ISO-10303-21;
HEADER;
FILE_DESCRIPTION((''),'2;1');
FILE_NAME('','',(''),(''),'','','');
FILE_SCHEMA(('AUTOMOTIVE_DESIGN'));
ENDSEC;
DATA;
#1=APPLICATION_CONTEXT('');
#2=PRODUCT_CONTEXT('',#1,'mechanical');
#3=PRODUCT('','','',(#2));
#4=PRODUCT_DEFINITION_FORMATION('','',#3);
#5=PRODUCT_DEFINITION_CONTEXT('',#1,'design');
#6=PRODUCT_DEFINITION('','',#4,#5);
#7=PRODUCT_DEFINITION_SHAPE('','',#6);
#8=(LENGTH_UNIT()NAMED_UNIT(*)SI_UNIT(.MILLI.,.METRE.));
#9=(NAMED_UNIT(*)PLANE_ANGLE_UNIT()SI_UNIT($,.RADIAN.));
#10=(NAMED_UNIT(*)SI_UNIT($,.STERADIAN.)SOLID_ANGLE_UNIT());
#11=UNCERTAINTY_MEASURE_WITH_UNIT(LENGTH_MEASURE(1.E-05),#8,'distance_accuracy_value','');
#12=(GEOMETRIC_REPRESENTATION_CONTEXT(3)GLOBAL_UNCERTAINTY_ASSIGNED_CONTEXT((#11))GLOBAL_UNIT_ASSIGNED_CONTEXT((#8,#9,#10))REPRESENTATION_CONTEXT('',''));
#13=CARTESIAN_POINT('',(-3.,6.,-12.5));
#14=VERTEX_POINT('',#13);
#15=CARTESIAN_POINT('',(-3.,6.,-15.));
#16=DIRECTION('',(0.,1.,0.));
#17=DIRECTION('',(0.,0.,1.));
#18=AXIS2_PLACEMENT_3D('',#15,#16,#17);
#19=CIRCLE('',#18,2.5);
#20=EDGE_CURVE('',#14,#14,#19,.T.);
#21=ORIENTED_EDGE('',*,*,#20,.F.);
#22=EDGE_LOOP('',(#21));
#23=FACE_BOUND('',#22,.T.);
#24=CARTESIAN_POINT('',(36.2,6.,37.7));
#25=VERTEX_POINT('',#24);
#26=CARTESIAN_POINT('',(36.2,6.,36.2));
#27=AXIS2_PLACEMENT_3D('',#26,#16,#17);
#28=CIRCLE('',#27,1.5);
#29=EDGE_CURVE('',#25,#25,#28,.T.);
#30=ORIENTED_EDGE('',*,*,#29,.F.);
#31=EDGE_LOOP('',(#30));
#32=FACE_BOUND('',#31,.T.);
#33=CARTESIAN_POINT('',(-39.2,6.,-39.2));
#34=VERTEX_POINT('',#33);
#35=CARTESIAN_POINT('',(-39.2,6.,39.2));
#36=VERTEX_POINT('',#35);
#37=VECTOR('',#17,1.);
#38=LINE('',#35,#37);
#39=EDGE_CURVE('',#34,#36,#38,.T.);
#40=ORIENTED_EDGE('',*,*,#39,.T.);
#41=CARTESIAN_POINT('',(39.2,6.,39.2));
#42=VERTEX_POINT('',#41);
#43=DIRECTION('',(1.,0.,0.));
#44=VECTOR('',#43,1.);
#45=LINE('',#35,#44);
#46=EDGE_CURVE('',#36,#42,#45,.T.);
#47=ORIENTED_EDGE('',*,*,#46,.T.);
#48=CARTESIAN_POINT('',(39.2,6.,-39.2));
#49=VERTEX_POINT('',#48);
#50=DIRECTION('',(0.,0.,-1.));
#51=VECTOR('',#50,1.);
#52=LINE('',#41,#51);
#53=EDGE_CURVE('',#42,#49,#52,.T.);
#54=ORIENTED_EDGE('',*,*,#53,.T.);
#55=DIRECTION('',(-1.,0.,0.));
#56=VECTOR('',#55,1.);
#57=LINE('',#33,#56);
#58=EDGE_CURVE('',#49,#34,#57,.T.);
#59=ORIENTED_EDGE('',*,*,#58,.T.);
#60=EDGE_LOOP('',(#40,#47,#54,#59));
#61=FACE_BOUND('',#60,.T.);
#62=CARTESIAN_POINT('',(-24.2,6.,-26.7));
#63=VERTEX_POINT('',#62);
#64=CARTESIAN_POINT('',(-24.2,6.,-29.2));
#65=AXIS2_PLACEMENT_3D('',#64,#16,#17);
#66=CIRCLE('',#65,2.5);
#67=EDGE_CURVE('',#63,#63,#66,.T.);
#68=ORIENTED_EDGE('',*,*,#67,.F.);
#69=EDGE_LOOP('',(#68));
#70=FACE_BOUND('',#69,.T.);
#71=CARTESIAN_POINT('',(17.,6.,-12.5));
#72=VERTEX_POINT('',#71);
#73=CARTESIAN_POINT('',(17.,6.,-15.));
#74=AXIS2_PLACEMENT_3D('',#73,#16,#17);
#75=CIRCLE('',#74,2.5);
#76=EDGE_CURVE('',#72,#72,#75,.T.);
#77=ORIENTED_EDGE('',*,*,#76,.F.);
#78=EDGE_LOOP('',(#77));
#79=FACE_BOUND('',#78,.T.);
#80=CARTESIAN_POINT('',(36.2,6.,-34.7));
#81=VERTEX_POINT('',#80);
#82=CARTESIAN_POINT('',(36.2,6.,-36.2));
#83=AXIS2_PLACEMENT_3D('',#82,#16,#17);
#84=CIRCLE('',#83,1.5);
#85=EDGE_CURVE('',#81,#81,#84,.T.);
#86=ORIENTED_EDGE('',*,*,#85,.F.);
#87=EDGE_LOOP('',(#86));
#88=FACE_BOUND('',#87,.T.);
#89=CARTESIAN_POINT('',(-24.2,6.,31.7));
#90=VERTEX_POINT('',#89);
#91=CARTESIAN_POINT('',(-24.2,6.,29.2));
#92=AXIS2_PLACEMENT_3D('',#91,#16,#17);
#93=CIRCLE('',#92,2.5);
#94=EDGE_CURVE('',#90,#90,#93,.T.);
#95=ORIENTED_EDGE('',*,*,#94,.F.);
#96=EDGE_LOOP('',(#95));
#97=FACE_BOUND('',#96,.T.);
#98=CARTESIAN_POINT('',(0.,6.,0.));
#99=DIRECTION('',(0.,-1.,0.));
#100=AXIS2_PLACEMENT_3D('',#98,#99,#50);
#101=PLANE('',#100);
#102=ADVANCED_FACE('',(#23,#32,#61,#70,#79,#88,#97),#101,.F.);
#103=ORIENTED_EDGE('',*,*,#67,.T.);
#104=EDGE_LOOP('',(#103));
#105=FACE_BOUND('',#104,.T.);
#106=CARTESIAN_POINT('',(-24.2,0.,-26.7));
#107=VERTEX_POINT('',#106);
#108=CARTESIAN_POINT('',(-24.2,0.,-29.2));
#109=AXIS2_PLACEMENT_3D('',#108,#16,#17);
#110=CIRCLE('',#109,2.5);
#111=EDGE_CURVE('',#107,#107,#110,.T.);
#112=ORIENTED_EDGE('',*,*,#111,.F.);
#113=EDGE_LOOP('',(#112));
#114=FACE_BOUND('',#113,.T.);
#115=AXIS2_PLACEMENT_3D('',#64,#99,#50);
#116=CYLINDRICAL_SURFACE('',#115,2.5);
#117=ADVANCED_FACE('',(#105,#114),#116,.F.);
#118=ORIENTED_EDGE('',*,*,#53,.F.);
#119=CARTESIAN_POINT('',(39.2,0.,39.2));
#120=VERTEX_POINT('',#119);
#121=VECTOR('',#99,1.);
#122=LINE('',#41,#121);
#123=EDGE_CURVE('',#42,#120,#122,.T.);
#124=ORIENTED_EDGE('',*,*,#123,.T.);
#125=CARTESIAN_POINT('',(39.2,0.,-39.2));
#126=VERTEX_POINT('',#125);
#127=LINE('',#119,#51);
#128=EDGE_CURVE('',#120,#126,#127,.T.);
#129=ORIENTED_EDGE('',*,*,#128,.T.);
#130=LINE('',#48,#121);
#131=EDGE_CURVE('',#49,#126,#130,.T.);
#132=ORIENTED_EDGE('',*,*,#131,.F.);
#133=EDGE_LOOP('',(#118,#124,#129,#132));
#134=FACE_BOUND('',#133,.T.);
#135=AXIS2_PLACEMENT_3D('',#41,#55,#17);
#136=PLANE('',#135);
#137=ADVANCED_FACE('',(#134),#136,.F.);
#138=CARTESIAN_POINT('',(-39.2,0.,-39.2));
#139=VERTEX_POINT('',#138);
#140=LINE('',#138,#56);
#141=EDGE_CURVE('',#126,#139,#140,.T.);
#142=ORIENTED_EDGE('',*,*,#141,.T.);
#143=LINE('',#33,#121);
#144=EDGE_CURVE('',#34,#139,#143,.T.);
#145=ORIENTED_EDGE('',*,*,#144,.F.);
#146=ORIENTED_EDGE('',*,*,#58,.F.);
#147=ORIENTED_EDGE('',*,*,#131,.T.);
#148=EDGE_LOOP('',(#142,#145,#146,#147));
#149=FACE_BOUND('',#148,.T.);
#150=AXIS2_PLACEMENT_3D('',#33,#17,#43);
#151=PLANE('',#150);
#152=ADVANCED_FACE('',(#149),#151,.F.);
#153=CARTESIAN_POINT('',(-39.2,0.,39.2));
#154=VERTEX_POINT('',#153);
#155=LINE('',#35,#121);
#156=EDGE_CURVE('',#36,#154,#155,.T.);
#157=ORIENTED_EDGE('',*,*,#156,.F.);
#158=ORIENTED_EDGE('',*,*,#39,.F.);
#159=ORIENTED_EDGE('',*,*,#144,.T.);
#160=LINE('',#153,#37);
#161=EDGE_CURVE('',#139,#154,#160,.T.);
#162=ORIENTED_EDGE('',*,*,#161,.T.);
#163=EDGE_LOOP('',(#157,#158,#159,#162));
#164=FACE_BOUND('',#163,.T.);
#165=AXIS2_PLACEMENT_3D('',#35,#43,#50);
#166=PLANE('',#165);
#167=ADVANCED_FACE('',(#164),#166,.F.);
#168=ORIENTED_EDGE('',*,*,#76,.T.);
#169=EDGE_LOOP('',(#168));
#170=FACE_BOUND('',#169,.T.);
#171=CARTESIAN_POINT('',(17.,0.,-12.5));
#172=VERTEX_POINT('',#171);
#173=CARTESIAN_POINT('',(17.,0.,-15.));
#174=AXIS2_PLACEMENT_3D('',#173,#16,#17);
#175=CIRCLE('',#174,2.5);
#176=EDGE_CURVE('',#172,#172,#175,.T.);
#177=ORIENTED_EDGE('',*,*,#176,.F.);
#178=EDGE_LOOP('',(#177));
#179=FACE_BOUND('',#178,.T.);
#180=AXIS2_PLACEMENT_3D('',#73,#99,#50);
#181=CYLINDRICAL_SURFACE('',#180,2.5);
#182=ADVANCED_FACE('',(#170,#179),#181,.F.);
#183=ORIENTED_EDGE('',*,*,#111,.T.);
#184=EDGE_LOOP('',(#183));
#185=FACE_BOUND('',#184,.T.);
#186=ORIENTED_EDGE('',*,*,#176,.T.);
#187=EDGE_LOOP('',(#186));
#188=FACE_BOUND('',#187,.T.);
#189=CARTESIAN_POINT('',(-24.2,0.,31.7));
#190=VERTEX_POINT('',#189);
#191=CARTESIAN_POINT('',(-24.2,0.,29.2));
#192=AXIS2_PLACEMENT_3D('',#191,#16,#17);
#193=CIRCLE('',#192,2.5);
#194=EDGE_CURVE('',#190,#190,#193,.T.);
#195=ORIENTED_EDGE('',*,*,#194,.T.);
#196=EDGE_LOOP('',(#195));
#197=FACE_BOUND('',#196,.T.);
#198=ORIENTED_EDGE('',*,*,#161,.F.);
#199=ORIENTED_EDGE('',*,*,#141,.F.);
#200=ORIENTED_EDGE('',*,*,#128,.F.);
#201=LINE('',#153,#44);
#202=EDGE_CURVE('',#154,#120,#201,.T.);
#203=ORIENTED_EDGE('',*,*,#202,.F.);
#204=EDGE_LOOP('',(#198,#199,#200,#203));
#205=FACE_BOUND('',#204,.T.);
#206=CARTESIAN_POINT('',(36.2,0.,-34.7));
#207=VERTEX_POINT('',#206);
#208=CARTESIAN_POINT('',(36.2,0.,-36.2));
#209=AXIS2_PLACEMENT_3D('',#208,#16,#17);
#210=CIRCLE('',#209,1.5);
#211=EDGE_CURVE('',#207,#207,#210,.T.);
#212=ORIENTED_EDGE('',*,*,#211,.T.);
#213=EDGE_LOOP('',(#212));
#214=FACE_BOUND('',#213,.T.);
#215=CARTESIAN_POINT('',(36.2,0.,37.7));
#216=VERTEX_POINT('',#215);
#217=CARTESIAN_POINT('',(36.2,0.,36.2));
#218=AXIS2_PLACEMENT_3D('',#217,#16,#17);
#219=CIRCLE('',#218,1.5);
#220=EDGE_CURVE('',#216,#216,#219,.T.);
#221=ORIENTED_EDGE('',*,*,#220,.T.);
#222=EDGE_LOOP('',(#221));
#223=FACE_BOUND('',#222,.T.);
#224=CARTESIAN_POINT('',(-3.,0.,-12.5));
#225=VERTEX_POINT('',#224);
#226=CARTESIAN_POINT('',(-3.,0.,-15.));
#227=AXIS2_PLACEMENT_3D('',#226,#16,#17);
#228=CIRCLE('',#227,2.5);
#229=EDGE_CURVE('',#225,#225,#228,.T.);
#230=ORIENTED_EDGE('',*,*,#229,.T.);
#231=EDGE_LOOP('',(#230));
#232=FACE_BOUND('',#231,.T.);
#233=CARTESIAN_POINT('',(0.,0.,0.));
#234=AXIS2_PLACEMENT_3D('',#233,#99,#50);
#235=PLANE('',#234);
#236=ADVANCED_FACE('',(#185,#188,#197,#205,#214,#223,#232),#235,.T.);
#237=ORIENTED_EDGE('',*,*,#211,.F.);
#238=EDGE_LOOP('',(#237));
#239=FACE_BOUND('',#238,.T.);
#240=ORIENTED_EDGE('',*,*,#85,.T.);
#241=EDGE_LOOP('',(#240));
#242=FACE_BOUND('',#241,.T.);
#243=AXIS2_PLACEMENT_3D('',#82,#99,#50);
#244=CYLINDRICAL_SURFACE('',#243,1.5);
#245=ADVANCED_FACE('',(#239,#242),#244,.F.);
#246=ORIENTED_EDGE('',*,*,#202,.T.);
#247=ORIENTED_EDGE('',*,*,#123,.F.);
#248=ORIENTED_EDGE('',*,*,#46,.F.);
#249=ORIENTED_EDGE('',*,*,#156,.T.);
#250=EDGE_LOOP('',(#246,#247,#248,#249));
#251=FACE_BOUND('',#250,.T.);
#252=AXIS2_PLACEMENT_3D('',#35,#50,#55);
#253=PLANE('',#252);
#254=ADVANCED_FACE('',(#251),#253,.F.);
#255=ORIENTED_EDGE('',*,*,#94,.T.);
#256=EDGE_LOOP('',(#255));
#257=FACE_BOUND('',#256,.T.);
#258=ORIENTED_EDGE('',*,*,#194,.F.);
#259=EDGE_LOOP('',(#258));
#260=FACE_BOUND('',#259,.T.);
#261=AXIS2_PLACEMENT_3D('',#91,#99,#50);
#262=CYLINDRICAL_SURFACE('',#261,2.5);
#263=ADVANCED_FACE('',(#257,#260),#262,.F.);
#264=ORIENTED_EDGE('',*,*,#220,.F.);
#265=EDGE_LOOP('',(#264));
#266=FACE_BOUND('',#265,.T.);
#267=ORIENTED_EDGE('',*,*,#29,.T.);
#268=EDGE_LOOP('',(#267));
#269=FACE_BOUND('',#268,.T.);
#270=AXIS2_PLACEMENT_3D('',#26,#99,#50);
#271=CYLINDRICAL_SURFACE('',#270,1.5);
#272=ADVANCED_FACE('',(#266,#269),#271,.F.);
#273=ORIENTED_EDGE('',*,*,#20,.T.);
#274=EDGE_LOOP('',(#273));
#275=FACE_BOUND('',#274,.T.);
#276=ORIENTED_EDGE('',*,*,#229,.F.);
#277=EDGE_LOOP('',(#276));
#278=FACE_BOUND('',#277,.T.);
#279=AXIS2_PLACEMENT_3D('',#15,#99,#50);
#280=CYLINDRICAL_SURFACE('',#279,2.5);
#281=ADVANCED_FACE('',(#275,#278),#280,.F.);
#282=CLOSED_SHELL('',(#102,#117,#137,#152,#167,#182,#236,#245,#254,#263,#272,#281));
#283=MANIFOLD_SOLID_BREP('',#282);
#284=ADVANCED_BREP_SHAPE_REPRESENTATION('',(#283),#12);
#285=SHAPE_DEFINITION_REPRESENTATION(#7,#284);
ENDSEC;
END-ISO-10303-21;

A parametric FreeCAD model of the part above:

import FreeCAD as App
import Part
import Sketcher
Q = App.Units.Quantity

doc = App.newDocument("Part")
body = doc.addObject("PartDesign::Body", "Body")

# Sketch on XZ plane
sketch1 = body.newObject("Sketcher::SketchObject", "Sketch")
sketch1.AttachmentSupport = (doc.getObject("XZ_Plane"), [""])
sketch1.MapMode = "FlatFace"
sketch1.addGeometry([
    Part.LineSegment(App.Vector(-39.2, -39.2, 0), App.Vector(-39.2, 39.2, 0)),  # 0
    Part.LineSegment(App.Vector(-39.2, 39.2, 0), App.Vector(39.2, 39.2, 0)),  # 1
    Part.LineSegment(App.Vector(39.2, 39.2, 0), App.Vector(39.2, -39.2, 0)),  # 2
    Part.LineSegment(App.Vector(39.2, -39.2, 0), App.Vector(-39.2, -39.2, 0)),  # 3
    Part.Circle(App.Vector(-24.2, 29.2, 0), App.Vector(0, 0, 1), 2.5),  # 4
    Part.Circle(App.Vector(36.2, 36.2, 0), App.Vector(0, 0, 1), 1.5),  # 5
    Part.Circle(App.Vector(-3, -15, 0), App.Vector(0, 0, 1), 2.5),  # 6
    Part.Circle(App.Vector(-24.2, -29.2, 0), App.Vector(0, 0, 1), 2.5),  # 7
    Part.Circle(App.Vector(17, -15, 0), App.Vector(0, 0, 1), 2.5),  # 8
    Part.Circle(App.Vector(36.2, -36.2, 0), App.Vector(0, 0, 1), 1.5),  # 9
], False)
sketch1.addConstraint([
    Sketcher.Constraint("Coincident", 0, 2, 1, 1),
    Sketcher.Constraint("Coincident", 1, 2, 2, 1),
    Sketcher.Constraint("Coincident", 2, 2, 3, 1),
    Sketcher.Constraint("Coincident", 3, 2, 0, 1),
    Sketcher.Constraint("Vertical", 0),
    Sketcher.Constraint("Horizontal", 1),
    Sketcher.Constraint("Vertical", 2),
    Sketcher.Constraint("Horizontal", 3),
    Sketcher.Constraint("Equal", 4, 6),
    Sketcher.Constraint("Equal", 6, 7),
    Sketcher.Constraint("Equal", 7, 8),
    Sketcher.Constraint("Equal", 5, 9),
    Sketcher.Constraint("Symmetric", 0, 2, 2, 2, -1, 1),
    Sketcher.Constraint("Symmetric", 4, 3, 7, 3, -1),
    Sketcher.Constraint("Symmetric", 5, 3, 9, 3, -1),
    Sketcher.Constraint("Horizontal", 6, 3, 8, 3),
    Sketcher.Constraint("Equal", 3, 0),
    Sketcher.Constraint("Diameter", 4, Q("5 mm")),
    Sketcher.Constraint("Diameter", 5, Q("3 mm")),
    Sketcher.Constraint("DistanceX", 1, 1, 1, 2, Q("78.4 mm")),
    Sketcher.Constraint("DistanceX", 6, 3, -1, 1, Q("3 mm")),
    Sketcher.Constraint("DistanceY", 6, 3, -1, 1, Q("15 mm")),
    Sketcher.Constraint("DistanceX", -1, 1, 8, 3, Q("17 mm")),
    Sketcher.Constraint("DistanceY", 4, 3, 5, 3, Q("7 mm")),
    Sketcher.Constraint("DistanceX", 0, 2, 4, 3, Q("15 mm")),
    Sketcher.Constraint("DistanceY", 4, 3, 0, 2, Q("10 mm")),
    Sketcher.Constraint("DistanceX", 5, 3, 1, 2, Q("3 mm")),
])
pad1 = body.newObject("PartDesign::Pad", "Pad")
pad1.Profile = sketch1
pad1.Length = 6
pad1.Reversed = True

doc.recompute()
